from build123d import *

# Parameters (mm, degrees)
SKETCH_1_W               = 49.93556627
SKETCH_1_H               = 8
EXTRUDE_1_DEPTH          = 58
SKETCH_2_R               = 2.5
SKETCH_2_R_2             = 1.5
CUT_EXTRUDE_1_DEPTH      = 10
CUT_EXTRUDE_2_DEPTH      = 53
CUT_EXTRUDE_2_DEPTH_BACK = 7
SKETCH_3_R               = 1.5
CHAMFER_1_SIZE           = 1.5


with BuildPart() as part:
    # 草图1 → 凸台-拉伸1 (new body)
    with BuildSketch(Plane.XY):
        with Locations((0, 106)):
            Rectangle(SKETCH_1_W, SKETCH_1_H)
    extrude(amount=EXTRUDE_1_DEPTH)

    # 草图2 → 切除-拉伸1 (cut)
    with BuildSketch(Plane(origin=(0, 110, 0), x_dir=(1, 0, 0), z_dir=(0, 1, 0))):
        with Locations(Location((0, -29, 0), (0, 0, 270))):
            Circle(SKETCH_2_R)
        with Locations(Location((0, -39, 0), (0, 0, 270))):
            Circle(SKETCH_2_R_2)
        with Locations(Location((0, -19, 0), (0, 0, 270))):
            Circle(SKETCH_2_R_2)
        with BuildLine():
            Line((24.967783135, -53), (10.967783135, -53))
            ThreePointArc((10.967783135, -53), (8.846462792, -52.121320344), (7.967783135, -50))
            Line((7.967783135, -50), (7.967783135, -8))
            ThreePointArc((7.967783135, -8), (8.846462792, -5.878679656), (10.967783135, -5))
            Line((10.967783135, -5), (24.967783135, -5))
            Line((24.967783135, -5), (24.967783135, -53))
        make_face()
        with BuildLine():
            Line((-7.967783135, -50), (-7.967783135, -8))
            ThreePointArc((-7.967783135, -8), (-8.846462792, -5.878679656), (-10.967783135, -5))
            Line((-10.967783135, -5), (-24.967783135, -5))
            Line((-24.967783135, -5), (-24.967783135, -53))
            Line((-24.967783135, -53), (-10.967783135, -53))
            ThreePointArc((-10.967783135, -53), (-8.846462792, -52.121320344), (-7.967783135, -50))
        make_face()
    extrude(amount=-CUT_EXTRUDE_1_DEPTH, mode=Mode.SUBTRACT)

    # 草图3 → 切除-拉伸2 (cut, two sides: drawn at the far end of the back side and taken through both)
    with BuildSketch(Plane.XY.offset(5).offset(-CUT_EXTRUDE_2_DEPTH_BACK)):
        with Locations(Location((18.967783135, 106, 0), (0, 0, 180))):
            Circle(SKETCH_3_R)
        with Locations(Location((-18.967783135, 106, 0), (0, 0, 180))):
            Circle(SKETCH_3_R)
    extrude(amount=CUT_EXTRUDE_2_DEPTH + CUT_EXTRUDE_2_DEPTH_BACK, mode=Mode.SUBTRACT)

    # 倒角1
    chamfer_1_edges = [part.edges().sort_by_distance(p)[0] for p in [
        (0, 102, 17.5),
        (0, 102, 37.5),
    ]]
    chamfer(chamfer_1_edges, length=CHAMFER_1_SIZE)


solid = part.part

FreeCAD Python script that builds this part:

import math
import FreeCAD as App
import Part
import Sketcher
from FreeCAD import Vector


def edges_at(feature, points):
    """Names of the edges that pass closest to the given points."""
    edges = feature.Shape.Edges
    near = lambda p: min(range(len(edges)), key=lambda i: edges[i].distToShape(Part.Vertex(*p))[0])
    return sorted({f"Edge{near(p) + 1}" for p in points})


def add_polygon(sketch, points):
    """Adds a closed chain of lines whose ends are joined by coincident constraints."""
    first, n = sketch.GeometryCount, len(points)
    for a, b in zip(points, points[1:] + points[:1]):
        sketch.addGeometry(Part.LineSegment(App.Vector(*a, 0), App.Vector(*b, 0)), False)
    for i in range(n):
        sketch.addConstraint(Sketcher.Constraint("Coincident", first + i, 2, first + (i + 1) % n, 1))

doc = App.newDocument("Part")
body = doc.addObject("PartDesign::Body", "Body")

# Sketch on XY plane
sketch1 = doc.addObject("Sketcher::SketchObject", "Sketch")
body.addObject(sketch1)
sketch1.AttachmentSupport = (doc.XY_Plane, [""])
sketch1.MapMode = "FlatFace"
add_polygon(sketch1, [(-24.967783, 110), (-24.967783, 102), (24.967783, 102), (24.967783, 110)])  # lines 0-3
sketch1.addConstraint([
    Sketcher.Constraint("Vertical", 0),
    Sketcher.Constraint("Horizontal", 1),
    Sketcher.Constraint("Vertical", 2),
    Sketcher.Constraint("Horizontal", 3),
    Sketcher.Constraint("DistanceY", 0, 2, 0, 1, 8.0),
    Sketcher.Constraint("DistanceY", -1, 1, 0, 2, 102.0),
    Sketcher.Constraint("DistanceX", 1, 1, 1, 2, 49.935566),
    Sketcher.Constraint("DistanceX", 0, 2, -1, 1, 24.967783),
])
pad1 = doc.addObject("PartDesign::Pad", "Pad")
body.addObject(pad1)
pad1.Profile = sketch1
pad1.Length = 58

# Sketch on XZ plane
sketch2 = doc.addObject("Sketcher::SketchObject", "Sketch001")
body.addObject(sketch2)
sketch2.AttachmentSupport = (doc.XZ_Plane, [""])
sketch2.MapMode = "FlatFace"
sketch2.AttachmentOffset = App.Placement(Vector(0, 0, -110), App.Rotation())
sketch2.addGeometry([
    Part.Circle(Vector(0, 29, 0), Vector(0, 0, 1), 2.5),  # 0
    Part.Circle(Vector(0, 39, 0), Vector(0, 0, 1), 1.5),  # 1
    Part.Circle(Vector(0, 19, 0), Vector(0, 0, 1), 1.5),  # 2
    Part.LineSegment(Vector(10.967783, 53, 0), Vector(24.967783, 53, 0)),  # 3
    Part.LineSegment(Vector(24.967783, 53, 0), Vector(24.967783, 5, 0)),  # 4
    Part.LineSegment(Vector(24.967783, 5, 0), Vector(10.967783, 5, 0)),  # 5
    Part.ArcOfCircle(Part.Circle(Vector(10.967783, 8, 0), Vector(0, 0, 1), 3), math.radians(180), math.radians(270)),  # 6
    Part.LineSegment(Vector(7.967783, 8, 0), Vector(7.967783, 50, 0)),  # 7
    Part.ArcOfCircle(Part.Circle(Vector(10.967783, 50, 0), Vector(0, 0, 1), 3), math.radians(90), math.radians(180)),  # 8
    Part.LineSegment(Vector(-7.967783, 50, 0), Vector(-7.967783, 8, 0)),  # 9
    Part.ArcOfCircle(Part.Circle(Vector(-10.967783, 8, 0), Vector(0, 0, 1), 3), math.radians(-90), math.radians(0)),  # 10
    Part.LineSegment(Vector(-10.967783, 5, 0), Vector(-24.967783, 5, 0)),  # 11
    Part.LineSegment(Vector(-24.967783, 5, 0), Vector(-24.967783, 53, 0)),  # 12
    Part.LineSegment(Vector(-24.967783, 53, 0), Vector(-10.967783, 53, 0)),  # 13
    Part.ArcOfCircle(Part.Circle(Vector(-10.967783, 50, 0), Vector(0, 0, 1), 3), math.radians(0), math.radians(90)),  # 14
], False)
sketch2.addConstraint([
    Sketcher.Constraint("Coincident", 3, 2, 4, 1),
    Sketcher.Constraint("Coincident", 4, 2, 5, 1),
    Sketcher.Constraint("Tangent", 5, 2, 6, 2),
    Sketcher.Constraint("Tangent", 6, 1, 7, 1),
    Sketcher.Constraint("Tangent", 7, 2, 8, 2),
    Sketcher.Constraint("Tangent", 8, 1, 3, 1),
    Sketcher.Constraint("Tangent", 9, 2, 10, 2),
    Sketcher.Constraint("Tangent", 10, 1, 11, 1),
    Sketcher.Constraint("Coincident", 11, 2, 12, 1),
    Sketcher.Constraint("Coincident", 12, 2, 13, 1),
    Sketcher.Constraint("Tangent", 13, 2, 14, 2),
    Sketcher.Constraint("Tangent", 14, 1, 9, 1),
    Sketcher.Constraint("Horizontal", 3),
    Sketcher.Constraint("Vertical", 4),
    Sketcher.Constraint("Horizontal", 5),
    Sketcher.Constraint("Vertical", 7),
    Sketcher.Constraint("Vertical", 9),
    Sketcher.Constraint("Horizontal", 11),
    Sketcher.Constraint("Vertical", 12),
    Sketcher.Constraint("Horizontal", 13),
    Sketcher.Constraint("Equal", 1, 2),
    Sketcher.Constraint("Equal", 6, 8),
    Sketcher.Constraint("Equal", 8, 10),
    Sketcher.Constraint("Equal", 10, 14),
    Sketcher.Constraint("Symmetric", 6, 3, 10, 3, -2),
    Sketcher.Constraint("Symmetric", 3, 2, 12, 2, -2),
    Sketcher.Constraint("PointOnObject", 0, 3, -2),
    Sketcher.Constraint("PointOnObject", 1, 3, -2),
    Sketcher.Constraint("PointOnObject", 2, 3, -2),
    Sketcher.Constraint("Diameter", 0, 5.0),
    Sketcher.Constraint("Diameter", 1, 3.0),
    Sketcher.Constraint("Radius", 6, 3.0),
    Sketcher.Constraint("DistanceX", 3, 1, 3, 2, 14.0),
    Sketcher.Constraint("DistanceY", 4, 2, 4, 1, 48.0),
    Sketcher.Constraint("DistanceY", -1, 1, 0, 3, 29.0),
    Sketcher.Constraint("DistanceY", -1, 1, 1, 3, 39.0),
    Sketcher.Constraint("DistanceY", -1, 1, 2, 3, 19.0),
    Sketcher.Constraint("DistanceY", -1, 1, 6, 3, 8.0),
    Sketcher.Constraint("DistanceX", -1, 1, 6, 3, 10.967783),
])
pocket1 = doc.addObject("PartDesign::Pocket", "Pocket")
body.addObject(pocket1)
pocket1.Profile = sketch2
pocket1.Length = 10
pocket1.Reversed = True

# Sketch on XY plane
sketch3 = doc.addObject("Sketcher::SketchObject", "Sketch002")
body.addObject(sketch3)
sketch3.AttachmentSupport = (doc.XY_Plane, [""])
sketch3.MapMode = "FlatFace"
sketch3.AttachmentOffset = App.Placement(Vector(0, 0, 5), App.Rotation())
sketch3.addGeometry([
    Part.Circle(Vector(18.967783, 106, 0), Vector(0, 0, 1), 1.5),
    Part.Circle(Vector(-18.967783, 106, 0), Vector(0, 0, 1), 1.5),
], False)
sketch3.addConstraint([
    Sketcher.Constraint("Equal", 0, 1),
    Sketcher.Constraint("Symmetric", 0, 3, 1, 3, -2),
    Sketcher.Constraint("Diameter", 0, 3.0),
    Sketcher.Constraint("DistanceY", -1, 1, 0, 3, 106.0),
    Sketcher.Constraint("DistanceX", -1, 1, 0, 3, 18.967783),
])
pocket2 = doc.addObject("PartDesign::Pocket", "Pocket001")
body.addObject(pocket2)
pocket2.Profile = sketch3
pocket2.Type = "ThroughAll"
pocket2.Midplane = True
doc.recompute()

chamfer = doc.addObject("PartDesign::Chamfer", "Chamfer")
body.addObject(chamfer)
chamfer.Base = (pocket2, edges_at(pocket2, [(0, 102, 17.5), (0, 102, 37.5)]))
chamfer.Size = 1.5

doc.recompute()
